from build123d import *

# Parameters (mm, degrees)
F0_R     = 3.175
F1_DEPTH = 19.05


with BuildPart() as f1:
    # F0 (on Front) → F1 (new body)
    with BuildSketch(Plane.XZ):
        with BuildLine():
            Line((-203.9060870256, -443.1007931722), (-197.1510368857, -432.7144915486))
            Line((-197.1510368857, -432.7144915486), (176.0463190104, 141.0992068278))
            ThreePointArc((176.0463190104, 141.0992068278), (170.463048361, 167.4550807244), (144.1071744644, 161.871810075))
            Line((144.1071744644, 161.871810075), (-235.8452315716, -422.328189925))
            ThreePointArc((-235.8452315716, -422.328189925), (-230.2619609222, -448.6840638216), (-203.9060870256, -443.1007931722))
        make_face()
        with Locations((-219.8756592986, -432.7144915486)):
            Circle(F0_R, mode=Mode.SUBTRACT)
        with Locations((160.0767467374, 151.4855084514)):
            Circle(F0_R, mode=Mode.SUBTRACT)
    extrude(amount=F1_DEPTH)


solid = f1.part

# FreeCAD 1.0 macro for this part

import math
import FreeCAD as App
import Part
import Sketcher
from FreeCAD import Vector
Q = App.Units.Quantity

doc = App.newDocument("Part")
params = doc.addObject("Spreadsheet::Sheet", "Params")
for row, (alias, value) in enumerate([
    ("sketch1_diameter", "0.25 in"),
    ("sketch1_radius", "0.75 in"),
    ("pad1_length", "0.75 in"),
], start=1):
    params.set(f"A{row}", alias)
    params.set(f"B{row}", "=" + value)
    params.setAlias(f"B{row}", alias)

body = doc.addObject("PartDesign::Body", "Body")

sketch1 = body.newObject("Sketcher::SketchObject", "Sketch")
sketch1.AttachmentSupport = (doc.getObject("XZ_Plane"), [""])
sketch1.MapMode = "FlatFace"
sketch1.addGeometry(Part.LineSegment(Vector(-203.906087, -443.100793, 0), Vector(-197.151037, -432.714492, 0)), False)
sketch1.addGeometry(Part.LineSegment(Vector(-197.151037, -432.714492, 0), Vector(176.046319, 141.099207, 0)), False)
sketch1.addGeometry(Part.ArcOfCircle(Part.Circle(Vector(160.076747, 151.485508, 0), Vector(0, 0, 1), 19.05), math.radians(-33.039199), math.radians(146.960801)), False)
sketch1.addGeometry(Part.LineSegment(Vector(144.107174, 161.87181, 0), Vector(-235.845232, -422.32819, 0)), False)
sketch1.addGeometry(Part.ArcOfCircle(Part.Circle(Vector(-219.875659, -432.714492, 0), Vector(0, 0, 1), 19.05), math.radians(146.960801), math.radians(326.960801)), False)
sketch1.addGeometry(Part.Circle(Vector(-219.875659, -432.714492, 0), Vector(0, 0, 1), 3.175), False)
sketch1.addGeometry(Part.Circle(Vector(160.076747, 151.485508, 0), Vector(0, 0, 1), 3.175), False)
sketch1.addConstraint(Sketcher.Constraint("Coincident", 0, 2, 1, 1))
sketch1.addConstraint(Sketcher.Constraint("Tangent", 1, 2, 2, 1))
sketch1.addConstraint(Sketcher.Constraint("Tangent", 2, 2, 3, 1))
sketch1.addConstraint(Sketcher.Constraint("Tangent", 3, 2, 4, 1))
sketch1.addConstraint(Sketcher.Constraint("Tangent", 4, 2, 0, 1))
sketch1.addConstraint(Sketcher.Constraint("Coincident", 5, 3, 4, 3))
sketch1.addConstraint(Sketcher.Constraint("Coincident", 6, 3, 2, 3))
sketch1.addConstraint(Sketcher.Constraint("Equal", 2, 4))
sketch1.addConstraint(Sketcher.Constraint("Equal", 5, 6))
sketch1.addConstraint(Sketcher.Constraint("Parallel", 0, 1))
sketch1.addConstraint(Sketcher.Constraint("Horizontal", 5, 3, 0, 2))
sketch1.addConstraint(Sketcher.Constraint("Diameter", 5, Q("0.25 in")))
sketch1.addConstraint(Sketcher.Constraint("Radius", 2, Q("0.75 in")))
sketch1.addConstraint(Sketcher.Constraint("DistanceY", 4, 3, 2, 3, Q("23 in")))
sketch1.addConstraint(Sketcher.Constraint("DistanceY", 1, 2, 2, 3, 10.386302))
sketch1.addConstraint(Sketcher.Constraint("DistanceY", -1, 1, 2, 3, 151.485508))
sketch1.addConstraint(Sketcher.Constraint("DistanceX", 4, 3, -1, 1, 219.875659))
sketch1.setExpression("Constraints[11]", "Params.sketch1_diameter")
sketch1.setExpression("Constraints[12]", "Params.sketch1_radius")
pad1 = body.newObject("PartDesign::Pad", "Pad")
pad1.Profile = sketch1
pad1.setExpression("Length", "Params.pad1_length")

doc.recompute()
